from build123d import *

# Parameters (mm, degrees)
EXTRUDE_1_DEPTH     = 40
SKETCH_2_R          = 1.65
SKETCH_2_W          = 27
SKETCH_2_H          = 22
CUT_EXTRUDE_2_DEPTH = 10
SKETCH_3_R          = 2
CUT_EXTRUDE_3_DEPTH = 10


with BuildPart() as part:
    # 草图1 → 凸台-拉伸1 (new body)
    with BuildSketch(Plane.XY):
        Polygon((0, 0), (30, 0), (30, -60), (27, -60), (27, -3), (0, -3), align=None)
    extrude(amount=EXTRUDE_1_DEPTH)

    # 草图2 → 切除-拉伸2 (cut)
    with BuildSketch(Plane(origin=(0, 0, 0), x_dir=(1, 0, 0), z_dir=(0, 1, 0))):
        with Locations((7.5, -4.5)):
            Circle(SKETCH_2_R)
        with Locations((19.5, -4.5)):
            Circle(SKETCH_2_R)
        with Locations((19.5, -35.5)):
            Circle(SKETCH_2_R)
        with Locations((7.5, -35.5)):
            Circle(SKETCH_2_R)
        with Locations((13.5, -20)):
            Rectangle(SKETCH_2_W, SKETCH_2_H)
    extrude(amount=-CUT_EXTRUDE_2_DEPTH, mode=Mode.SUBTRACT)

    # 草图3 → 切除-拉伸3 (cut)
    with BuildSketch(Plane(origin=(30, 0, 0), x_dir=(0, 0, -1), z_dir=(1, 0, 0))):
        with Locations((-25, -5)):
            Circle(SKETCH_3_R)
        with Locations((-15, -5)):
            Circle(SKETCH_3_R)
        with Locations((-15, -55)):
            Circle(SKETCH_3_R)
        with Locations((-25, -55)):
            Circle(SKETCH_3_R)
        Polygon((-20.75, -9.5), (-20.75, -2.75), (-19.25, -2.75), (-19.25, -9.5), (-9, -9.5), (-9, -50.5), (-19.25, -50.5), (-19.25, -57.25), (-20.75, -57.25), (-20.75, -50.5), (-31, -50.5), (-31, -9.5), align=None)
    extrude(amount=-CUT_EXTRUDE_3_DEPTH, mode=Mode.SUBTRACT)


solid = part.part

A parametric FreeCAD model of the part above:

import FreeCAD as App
import Part
import Sketcher

V = App.Vector
Q = App.Units.Quantity

doc = App.newDocument("Part")
body = doc.addObject("PartDesign::Body", "Body")

# Sketch on XY plane
sketch1 = body.newObject("Sketcher::SketchObject", "Sketch")
sketch1.AttachmentSupport = (doc.getObject("XY_Plane"), [""])
sketch1.MapMode = "FlatFace"
sketch1.addGeometry([
    Part.LineSegment(V(30, 0, 0), V(0, 0, 0)),  # 0
    Part.LineSegment(V(0, 0, 0), V(0, -3, 0)),  # 1
    Part.LineSegment(V(0, -3, 0), V(27, -3, 0)),  # 2
    Part.LineSegment(V(27, -3, 0), V(27, -60, 0)),  # 3
    Part.LineSegment(V(27, -60, 0), V(30, -60, 0)),  # 4
    Part.LineSegment(V(30, -60, 0), V(30, 0, 0)),  # 5
], False)
sketch1.addConstraint([
    Sketcher.Constraint("Coincident", 0, 2, 1, 1),
    Sketcher.Constraint("Coincident", 1, 2, 2, 1),
    Sketcher.Constraint("Coincident", 2, 2, 3, 1),
    Sketcher.Constraint("Coincident", 3, 2, 4, 1),
    Sketcher.Constraint("Coincident", 4, 2, 5, 1),
    Sketcher.Constraint("Coincident", 5, 2, 0, 1),
    Sketcher.Constraint("Horizontal", 0),
    Sketcher.Constraint("Vertical", 1),
    Sketcher.Constraint("Horizontal", 2),
    Sketcher.Constraint("Vertical", 3),
    Sketcher.Constraint("Horizontal", 4),
    Sketcher.Constraint("Vertical", 5),
    Sketcher.Constraint("Coincident", 0, 2, -1, 1),
    Sketcher.Constraint("Equal", 4, 1),
    Sketcher.Constraint("DistanceX", 0, 2, 0, 1, Q("30 mm")),
    Sketcher.Constraint("DistanceX", 2, 1, 2, 2, Q("27 mm")),
    Sketcher.Constraint("DistanceY", 3, 2, 3, 1, Q("57 mm")),
])
pad1 = body.newObject("PartDesign::Pad", "Pad")
pad1.Profile = sketch1
pad1.Length = 40

# Sketch on XZ plane
sketch2 = body.newObject("Sketcher::SketchObject", "Sketch001")
sketch2.AttachmentSupport = (doc.getObject("XZ_Plane"), [""])
sketch2.MapMode = "FlatFace"
sketch2.addGeometry([
    Part.Circle(V(7.5, 4.5, 0), V(0, 0, 1), 1.6),  # 0
    Part.Circle(V(19.5, 4.5, 0), V(0, 0, 1), 1.6),  # 1
    Part.Circle(V(19.5, 35.5, 0), V(0, 0, 1), 1.6),  # 2
    Part.Circle(V(7.5, 35.5, 0), V(0, 0, 1), 1.6),  # 3
    Part.LineSegment(V(0, 9, 0), V(0, 31, 0)),  # 4
    Part.LineSegment(V(0, 31, 0), V(27, 31, 0)),  # 5
    Part.LineSegment(V(27, 31, 0), V(27, 9, 0)),  # 6
    Part.LineSegment(V(27, 9, 0), V(0, 9, 0)),  # 7
], False)
sketch2.addConstraint([
    Sketcher.Constraint("Coincident", 4, 2, 5, 1),
    Sketcher.Constraint("Coincident", 5, 2, 6, 1),
    Sketcher.Constraint("Coincident", 6, 2, 7, 1),
    Sketcher.Constraint("Coincident", 7, 2, 4, 1),
    Sketcher.Constraint("Vertical", 4),
    Sketcher.Constraint("Horizontal", 5),
    Sketcher.Constraint("Vertical", 6),
    Sketcher.Constraint("Horizontal", 7),
    Sketcher.Constraint("Equal", 0, 1),
    Sketcher.Constraint("Equal", 1, 2),
    Sketcher.Constraint("Equal", 2, 3),
    Sketcher.Constraint("PointOnObject", 4, 2, -2),
    Sketcher.Constraint("Horizontal", 0, 3, 1, 3),
    Sketcher.Constraint("Horizontal", 2, 3, 3, 3),
    Sketcher.Constraint("Vertical", 1, 3, 2, 3),
    Sketcher.Constraint("Vertical", 0, 3, 3, 3),
    Sketcher.Constraint("Diameter", 0, Q("3.3 mm")),
    Sketcher.Constraint("DistanceX", 5, 1, 5, 2, Q("27 mm")),
    Sketcher.Constraint("DistanceY", 4, 1, 4, 2, Q("22 mm")),
    Sketcher.Constraint("DistanceY", -1, 1, 4, 2, Q("31 mm")),
    Sketcher.Constraint("DistanceX", 0, 3, 1, 3, Q("12 mm")),
    Sketcher.Constraint("DistanceY", 1, 3, 2, 3, Q("31 mm")),
    Sketcher.Constraint("DistanceX", -1, 1, 0, 3, Q("7.5 mm")),
    Sketcher.Constraint("DistanceY", -1, 1, 0, 3, Q("4.5 mm")),
])
pocket1 = body.newObject("PartDesign::Pocket", "Pocket")
pocket1.Profile = sketch2
pocket1.Length = 10
pocket1.Reversed = True

# Sketch on YZ plane
sketch3 = body.newObject("Sketcher::SketchObject", "Sketch002")
sketch3.AttachmentSupport = (doc.getObject("YZ_Plane"), [""])
sketch3.MapMode = "FlatFace"
sketch3.AttachmentOffset = App.Placement(V(0, 0, 30), App.Rotation())
sketch3.addGeometry([
    Part.Circle(V(-5, 25, 0), V(0, 0, 1), 2),  # 0
    Part.Circle(V(-5, 15, 0), V(0, 0, 1), 2),  # 1
    Part.Circle(V(-55, 15, 0), V(0, 0, 1), 2),  # 2
    Part.Circle(V(-55, 25, 0), V(0, 0, 1), 2),  # 3
    Part.LineSegment(V(-2.8, 20.8, 0), V(-9.5, 20.8, 0)),  # 4
    Part.LineSegment(V(-9.5, 20.8, 0), V(-9.5, 31, 0)),  # 5
    Part.LineSegment(V(-9.5, 31, 0), V(-50.5, 31, 0)),  # 6
    Part.LineSegment(V(-50.5, 31, 0), V(-50.5, 20.8, 0)),  # 7
    Part.LineSegment(V(-50.5, 20.8, 0), V(-57.2, 20.8, 0)),  # 8
    Part.LineSegment(V(-57.2, 20.8, 0), V(-57.2, 19.2, 0)),  # 9
    Part.LineSegment(V(-57.2, 19.2, 0), V(-50.5, 19.2, 0)),  # 10
    Part.LineSegment(V(-50.5, 19.2, 0), V(-50.5, 9, 0)),  # 11
    Part.LineSegment(V(-50.5, 9, 0), V(-9.5, 9, 0)),  # 12
    Part.LineSegment(V(-9.5, 9, 0), V(-9.5, 19.2, 0)),  # 13
    Part.LineSegment(V(-9.5, 19.2, 0), V(-2.8, 19.2, 0)),  # 14
    Part.LineSegment(V(-2.8, 19.2, 0), V(-2.8, 20.8, 0)),  # 15
], False)
sketch3.addConstraint([
    Sketcher.Constraint("Coincident", 4, 2, 5, 1),
    Sketcher.Constraint("Coincident", 5, 2, 6, 1),
    Sketcher.Constraint("Coincident", 6, 2, 7, 1),
    Sketcher.Constraint("Coincident", 7, 2, 8, 1),
    Sketcher.Constraint("Coincident", 8, 2, 9, 1),
    Sketcher.Constraint("Coincident", 9, 2, 10, 1),
    Sketcher.Constraint("Coincident", 10, 2, 11, 1),
    Sketcher.Constraint("Coincident", 11, 2, 12, 1),
    Sketcher.Constraint("Coincident", 12, 2, 13, 1),
    Sketcher.Constraint("Coincident", 13, 2, 14, 1),
    Sketcher.Constraint("Coincident", 14, 2, 15, 1),
    Sketcher.Constraint("Coincident", 15, 2, 4, 1),
    Sketcher.Constraint("Horizontal", 4),
    Sketcher.Constraint("Vertical", 5),
    Sketcher.Constraint("Horizontal", 6),
    Sketcher.Constraint("Vertical", 7),
    Sketcher.Constraint("Horizontal", 8),
    Sketcher.Constraint("Vertical", 9),
    Sketcher.Constraint("Horizontal", 10),
    Sketcher.Constraint("Vertical", 11),
    Sketcher.Constraint("Horizontal", 12),
    Sketcher.Constraint("Vertical", 13),
    Sketcher.Constraint("Horizontal", 14),
    Sketcher.Constraint("Vertical", 15),
    Sketcher.Constraint("Equal", 0, 1),
    Sketcher.Constraint("Equal", 1, 2),
    Sketcher.Constraint("Equal", 2, 3),
    Sketcher.Constraint("Horizontal", 1, 3, 2, 3),
    Sketcher.Constraint("Horizontal", 0, 3, 3, 3),
    Sketcher.Constraint("Horizontal", 4, 2, 7, 2),
    Sketcher.Constraint("Horizontal", 10, 2, 13, 2),
    Sketcher.Constraint("Vertical", 0, 3, 1, 3),
    Sketcher.Constraint("Vertical", 2, 3, 3, 3),
    Sketcher.Constraint("Vertical", 7, 2, 10, 2),
    Sketcher.Constraint("Vertical", 5, 2, 12, 2),
    Sketcher.Constraint("Equal", 4, 8),
    Sketcher.Constraint("Equal", 7, 11),
    Sketcher.Constraint("Diameter", 0, Q("4 mm")),
    Sketcher.Constraint("DistanceX", 6, 2, 6, 1, Q("41 mm")),
    Sketcher.Constraint("DistanceY", 9, 2, 9, 1, Q("1.5 mm")),
    Sketcher.Constraint("DistanceX", 0, 3, -1, 1, Q("5 mm")),
    Sketcher.Constraint("DistanceY", -1, 1, 0, 3, Q("25 mm")),
    Sketcher.Constraint("DistanceY", -1, 1, 1, 3, Q("15 mm")),
    Sketcher.Constraint("DistanceX", 2, 3, -1, 1, Q("55 mm")),
    Sketcher.Constraint("DistanceY", -1, 1, 5, 2, Q("31 mm")),
    Sketcher.Constraint("DistanceY", -1, 1, 11, 2, Q("9 mm")),
    Sketcher.Constraint("DistanceX", 4, 2, 4, 1, Q("6.75 mm")),
    Sketcher.Constraint("DistanceX", 4, 2, -1, 1, Q("9.5 mm")),
])
pocket2 = body.newObject("PartDesign::Pocket", "Pocket001")
pocket2.Profile = sketch3
pocket2.Length = 10

doc.recompute()
